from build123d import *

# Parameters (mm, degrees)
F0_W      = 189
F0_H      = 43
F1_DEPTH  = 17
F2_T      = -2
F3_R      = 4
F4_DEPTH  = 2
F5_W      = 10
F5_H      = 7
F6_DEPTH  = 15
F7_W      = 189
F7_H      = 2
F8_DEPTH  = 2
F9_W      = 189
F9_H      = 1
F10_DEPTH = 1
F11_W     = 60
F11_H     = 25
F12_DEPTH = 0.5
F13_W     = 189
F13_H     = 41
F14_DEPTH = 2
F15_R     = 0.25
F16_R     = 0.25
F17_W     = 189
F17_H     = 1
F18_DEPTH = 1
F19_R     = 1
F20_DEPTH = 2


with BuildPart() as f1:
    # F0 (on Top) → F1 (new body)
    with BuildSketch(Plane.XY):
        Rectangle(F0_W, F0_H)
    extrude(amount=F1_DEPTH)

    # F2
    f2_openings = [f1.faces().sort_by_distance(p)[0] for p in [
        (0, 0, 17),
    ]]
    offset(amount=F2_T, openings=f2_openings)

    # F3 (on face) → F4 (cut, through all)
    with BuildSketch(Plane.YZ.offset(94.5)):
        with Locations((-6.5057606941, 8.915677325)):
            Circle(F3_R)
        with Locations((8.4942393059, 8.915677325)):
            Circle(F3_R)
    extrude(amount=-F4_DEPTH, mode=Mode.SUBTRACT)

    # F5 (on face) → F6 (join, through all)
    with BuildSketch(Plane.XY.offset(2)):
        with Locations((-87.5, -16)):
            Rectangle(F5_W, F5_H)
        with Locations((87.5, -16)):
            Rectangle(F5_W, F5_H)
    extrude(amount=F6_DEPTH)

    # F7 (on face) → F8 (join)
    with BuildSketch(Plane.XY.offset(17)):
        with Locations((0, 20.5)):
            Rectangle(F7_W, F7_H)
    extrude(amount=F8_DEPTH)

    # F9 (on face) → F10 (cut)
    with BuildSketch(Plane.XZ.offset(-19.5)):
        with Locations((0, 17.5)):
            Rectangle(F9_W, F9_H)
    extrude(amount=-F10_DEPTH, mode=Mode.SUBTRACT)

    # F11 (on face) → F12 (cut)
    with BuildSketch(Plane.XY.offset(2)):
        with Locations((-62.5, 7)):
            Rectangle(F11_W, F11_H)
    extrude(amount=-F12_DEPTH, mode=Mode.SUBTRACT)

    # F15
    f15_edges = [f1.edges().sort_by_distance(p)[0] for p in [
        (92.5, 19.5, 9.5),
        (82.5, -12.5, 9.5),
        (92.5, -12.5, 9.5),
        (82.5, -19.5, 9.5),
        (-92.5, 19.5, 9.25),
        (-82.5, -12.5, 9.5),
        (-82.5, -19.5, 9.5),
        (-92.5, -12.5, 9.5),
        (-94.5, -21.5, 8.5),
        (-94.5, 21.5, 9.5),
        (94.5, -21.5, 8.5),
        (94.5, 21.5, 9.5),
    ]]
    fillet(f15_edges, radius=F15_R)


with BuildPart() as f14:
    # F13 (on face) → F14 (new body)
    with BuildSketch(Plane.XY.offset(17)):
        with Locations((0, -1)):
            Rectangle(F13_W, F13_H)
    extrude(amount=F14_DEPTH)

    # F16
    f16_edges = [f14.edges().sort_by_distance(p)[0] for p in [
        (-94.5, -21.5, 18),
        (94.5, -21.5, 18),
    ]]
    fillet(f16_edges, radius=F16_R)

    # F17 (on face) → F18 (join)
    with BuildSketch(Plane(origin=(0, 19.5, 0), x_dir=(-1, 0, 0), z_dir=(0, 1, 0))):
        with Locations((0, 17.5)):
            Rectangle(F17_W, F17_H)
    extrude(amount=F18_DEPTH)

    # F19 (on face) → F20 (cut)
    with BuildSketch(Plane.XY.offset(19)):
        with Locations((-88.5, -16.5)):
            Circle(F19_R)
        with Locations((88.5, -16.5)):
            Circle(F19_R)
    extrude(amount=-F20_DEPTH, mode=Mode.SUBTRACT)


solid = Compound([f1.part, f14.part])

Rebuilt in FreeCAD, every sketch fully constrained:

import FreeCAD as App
import Part
import Sketcher
Q = App.Units.Quantity


def edges_at(feature, points):
    """Names of the edges that pass closest to the given points."""
    edges = feature.Shape.Edges
    near = lambda p: min(range(len(edges)), key=lambda i: edges[i].distToShape(Part.Vertex(*p))[0])
    return sorted({f"Edge{near(p) + 1}" for p in points})


def faces_at(feature, points):
    """Names of the faces that lie closest to the given points."""
    faces = feature.Shape.Faces
    near = lambda p: min(range(len(faces)), key=lambda i: faces[i].distToShape(Part.Vertex(*p))[0])
    return sorted({f"Face{near(p) + 1}" for p in points})

doc = App.newDocument("Part")
body = doc.addObject("PartDesign::Body", "Body")

sketch1 = body.newObject("Sketcher::SketchObject", "Sketch")
sketch1.AttachmentSupport = (doc.getObject("XY_Plane"), [""])
sketch1.MapMode = "FlatFace"
sketch1.addGeometry([
    Part.LineSegment(App.Vector(-94, 22, 0), App.Vector(-94, -22, 0)),
    Part.LineSegment(App.Vector(-94, -22, 0), App.Vector(94, -22, 0)),
    Part.LineSegment(App.Vector(94, -22, 0), App.Vector(94, 22, 0)),
    Part.LineSegment(App.Vector(94, 22, 0), App.Vector(-94, 22, 0)),
], False)
sketch1.addConstraint([
    Sketcher.Constraint("Coincident", 0, 2, 1, 1),
    Sketcher.Constraint("Coincident", 1, 2, 2, 1),
    Sketcher.Constraint("Coincident", 2, 2, 3, 1),
    Sketcher.Constraint("Coincident", 3, 2, 0, 1),
    Sketcher.Constraint("Vertical", 0),
    Sketcher.Constraint("Horizontal", 1),
    Sketcher.Constraint("Vertical", 2),
    Sketcher.Constraint("Horizontal", 3),
    Sketcher.Constraint("Symmetric", 0, 2, 2, 2, -1, 1),
    Sketcher.Constraint("DistanceX", 1, 1, 1, 2, Q("189 mm")),
    Sketcher.Constraint("DistanceY", 0, 2, 0, 1, Q("43 mm")),
])
pad1 = body.newObject("PartDesign::Pad", "Pad")
pad1.Profile = sketch1
pad1.Length = 17
doc.recompute()

thickness = body.newObject("PartDesign::Thickness", "Thickness")
thickness.Base = (pad1, faces_at(pad1, [(0, 0, 17)]))
thickness.Value = 2
thickness.Reversed = True
thickness.Join = "Arc"

sketch2 = body.newObject("Sketcher::SketchObject", "Sketch001")
sketch2.AttachmentSupport = (doc.getObject("YZ_Plane"), [""])
sketch2.MapMode = "FlatFace"
sketch2.AttachmentOffset = App.Placement(App.Vector(0, 0, 94.5), App.Rotation())
sketch2.addGeometry([
    Part.Circle(App.Vector(-6.5, 8.9, 0), App.Vector(0, 0, 1), 4),
    Part.Circle(App.Vector(8.5, 8.9, 0), App.Vector(0, 0, 1), 4),
], False)
sketch2.addConstraint([
    Sketcher.Constraint("Equal", 0, 1),
    Sketcher.Constraint("Horizontal", 0, 3, 1, 3),
    Sketcher.Constraint("Diameter", 0, Q("8 mm")),
    Sketcher.Constraint("DistanceX", 0, 3, 1, 3, Q("15 mm")),
    Sketcher.Constraint("DistanceX", 0, 3, -1, 1, Q("6.505761 mm")),
    Sketcher.Constraint("DistanceY", -1, 1, 0, 3, Q("8.915677 mm")),
])
pocket1 = body.newObject("PartDesign::Pocket", "Pocket")
pocket1.Profile = sketch2
pocket1.Length = 2

sketch3 = body.newObject("Sketcher::SketchObject", "Sketch002")
sketch3.AttachmentSupport = (doc.getObject("XY_Plane"), [""])
sketch3.MapMode = "FlatFace"
sketch3.AttachmentOffset = App.Placement(App.Vector(0, 0, 2), App.Rotation())
sketch3.addGeometry([
    Part.LineSegment(App.Vector(-92, -12, 0), App.Vector(-92, -20, 0)),
    Part.LineSegment(App.Vector(-92, -20, 0), App.Vector(-82, -20, 0)),
    Part.LineSegment(App.Vector(-82, -20, 0), App.Vector(-82, -12, 0)),
    Part.LineSegment(App.Vector(-82, -12, 0), App.Vector(-92, -12, 0)),
    Part.LineSegment(App.Vector(82, -12, 0), App.Vector(82, -20, 0)),
    Part.LineSegment(App.Vector(82, -20, 0), App.Vector(92, -20, 0)),
    Part.LineSegment(App.Vector(92, -20, 0), App.Vector(92, -12, 0)),
    Part.LineSegment(App.Vector(92, -12, 0), App.Vector(82, -12, 0)),
], False)
sketch3.addConstraint([
    Sketcher.Constraint("Coincident", 0, 2, 1, 1),
    Sketcher.Constraint("Coincident", 1, 2, 2, 1),
    Sketcher.Constraint("Coincident", 2, 2, 3, 1),
    Sketcher.Constraint("Coincident", 3, 2, 0, 1),
    Sketcher.Constraint("Coincident", 4, 2, 5, 1),
    Sketcher.Constraint("Coincident", 5, 2, 6, 1),
    Sketcher.Constraint("Coincident", 6, 2, 7, 1),
    Sketcher.Constraint("Coincident", 7, 2, 4, 1),
    Sketcher.Constraint("Vertical", 0),
    Sketcher.Constraint("Horizontal", 1),
    Sketcher.Constraint("Vertical", 2),
    Sketcher.Constraint("Horizontal", 3),
    Sketcher.Constraint("Vertical", 4),
    Sketcher.Constraint("Horizontal", 5),
    Sketcher.Constraint("Vertical", 6),
    Sketcher.Constraint("Horizontal", 7),
    Sketcher.Constraint("Symmetric", 1, 2, 4, 2, -2),
    Sketcher.Constraint("Symmetric", 3, 2, 6, 2, -2),
    Sketcher.Constraint("DistanceX", 1, 1, 1, 2, Q("10 mm")),
    Sketcher.Constraint("DistanceY", 0, 2, 0, 1, Q("7 mm")),
    Sketcher.Constraint("DistanceX", 1, 2, 4, 2, Q("165 mm")),
    Sketcher.Constraint("DistanceY", 0, 2, -1, 1, Q("19.5 mm")),
])
pad2 = body.newObject("PartDesign::Pad", "Pad001")
pad2.Profile = sketch3
pad2.Length = 15

sketch4 = body.newObject("Sketcher::SketchObject", "Sketch003")
sketch4.AttachmentSupport = (doc.getObject("XY_Plane"), [""])
sketch4.MapMode = "FlatFace"
sketch4.AttachmentOffset = App.Placement(App.Vector(0, 0, 17), App.Rotation())
sketch4.addGeometry([
    Part.LineSegment(App.Vector(-94.5, 21.5, 0), App.Vector(-94.5, 19.5, 0)),
    Part.LineSegment(App.Vector(-94.5, 19.5, 0), App.Vector(94.5, 19.5, 0)),
    Part.LineSegment(App.Vector(94.5, 19.5, 0), App.Vector(94.5, 21.5, 0)),
    Part.LineSegment(App.Vector(94.5, 21.5, 0), App.Vector(-94.5, 21.5, 0)),
], False)
sketch4.addConstraint([
    Sketcher.Constraint("Coincident", 0, 2, 1, 1),
    Sketcher.Constraint("Coincident", 1, 2, 2, 1),
    Sketcher.Constraint("Coincident", 2, 2, 3, 1),
    Sketcher.Constraint("Coincident", 3, 2, 0, 1),
    Sketcher.Constraint("Vertical", 0),
    Sketcher.Constraint("Horizontal", 1),
    Sketcher.Constraint("Vertical", 2),
    Sketcher.Constraint("Horizontal", 3),
    Sketcher.Constraint("DistanceX", 1, 1, 1, 2, Q("189 mm")),
    Sketcher.Constraint("DistanceY", 0, 2, 0, 1, Q("2 mm")),
    Sketcher.Constraint("DistanceX", 0, 2, -1, 1, Q("94.5 mm")),
    Sketcher.Constraint("DistanceY", -1, 1, 0, 2, Q("19.5 mm")),
])
pad3 = body.newObject("PartDesign::Pad", "Pad002")
pad3.Profile = sketch4
pad3.Length = 2

sketch5 = body.newObject("Sketcher::SketchObject", "Sketch004")
sketch5.AttachmentSupport = (doc.getObject("XZ_Plane"), [""])
sketch5.MapMode = "FlatFace"
sketch5.AttachmentOffset = App.Placement(App.Vector(0, 0, -19.5), App.Rotation())
sketch5.addGeometry([
    Part.LineSegment(App.Vector(-94.5, 18, 0), App.Vector(-94.5, 17, 0)),
    Part.LineSegment(App.Vector(-94.5, 17, 0), App.Vector(94.5, 17, 0)),
    Part.LineSegment(App.Vector(94.5, 17, 0), App.Vector(94.5, 18, 0)),
    Part.LineSegment(App.Vector(94.5, 18, 0), App.Vector(-94.5, 18, 0)),
], False)
sketch5.addConstraint([
    Sketcher.Constraint("Coincident", 0, 2, 1, 1),
    Sketcher.Constraint("Coincident", 1, 2, 2, 1),
    Sketcher.Constraint("Coincident", 2, 2, 3, 1),
    Sketcher.Constraint("Coincident", 3, 2, 0, 1),
    Sketcher.Constraint("Vertical", 0),
    Sketcher.Constraint("Horizontal", 1),
    Sketcher.Constraint("Vertical", 2),
    Sketcher.Constraint("Horizontal", 3),
    Sketcher.Constraint("DistanceX", 1, 1, 1, 2, Q("189 mm")),
    Sketcher.Constraint("DistanceY", 0, 2, 0, 1, Q("1 mm")),
    Sketcher.Constraint("DistanceY", -1, 1, 0, 2, Q("17 mm")),
    Sketcher.Constraint("DistanceX", 0, 2, -1, 1, Q("94.5 mm")),
])
pocket2 = body.newObject("PartDesign::Pocket", "Pocket001")
pocket2.Profile = sketch5
pocket2.Length = 1

sketch6 = body.newObject("Sketcher::SketchObject", "Sketch005")
sketch6.AttachmentSupport = (doc.getObject("XY_Plane"), [""])
sketch6.MapMode = "FlatFace"
sketch6.AttachmentOffset = App.Placement(App.Vector(0, 0, 2), App.Rotation())
sketch6.addGeometry([
    Part.LineSegment(App.Vector(-92, 20, 0), App.Vector(-92, -6, 0)),
    Part.LineSegment(App.Vector(-92, -6, 0), App.Vector(-32, -6, 0)),
    Part.LineSegment(App.Vector(-32, -6, 0), App.Vector(-32, 20, 0)),
    Part.LineSegment(App.Vector(-32, 20, 0), App.Vector(-92, 20, 0)),
], False)
sketch6.addConstraint([
    Sketcher.Constraint("Coincident", 0, 2, 1, 1),
    Sketcher.Constraint("Coincident", 1, 2, 2, 1),
    Sketcher.Constraint("Coincident", 2, 2, 3, 1),
    Sketcher.Constraint("Coincident", 3, 2, 0, 1),
    Sketcher.Constraint("Vertical", 0),
    Sketcher.Constraint("Horizontal", 1),
    Sketcher.Constraint("Vertical", 2),
    Sketcher.Constraint("Horizontal", 3),
    Sketcher.Constraint("DistanceX", 1, 1, 1, 2, Q("60 mm")),
    Sketcher.Constraint("DistanceY", 0, 2, 0, 1, Q("25 mm")),
    Sketcher.Constraint("DistanceX", 0, 2, -1, 1, Q("92.5 mm")),
    Sketcher.Constraint("DistanceY", 0, 2, -1, 1, Q("5.5 mm")),
])
pocket3 = body.newObject("PartDesign::Pocket", "Pocket002")
pocket3.Profile = sketch6
pocket3.Length = 0.5
doc.recompute()

fillet = body.newObject("PartDesign::Fillet", "Fillet")
fillet.Base = (pocket3, edges_at(pocket3, [
    (92.5, 19.5, 9.5),
    (82.5, -12.5, 9.5),
    (92.5, -12.5, 9.5),
    (82.5, -19.5, 9.5),
    (-92.5, 19.5, 9.25),
    (-82.5, -12.5, 9.5),
    (-82.5, -19.5, 9.5),
    (-92.5, -12.5, 9.5),
    (-94.5, -21.5, 8.5),
    (-94.5, 21.5, 9.5),
    (94.5, -21.5, 8.5),
    (94.5, 21.5, 9.5),
]))
fillet.Radius = 0.25
body2 = doc.addObject("PartDesign::Body", "Body001")

sketch7 = body2.newObject("Sketcher::SketchObject", "Sketch006")
sketch7.AttachmentSupport = (doc.getObject("XY_Plane001"), [""])
sketch7.MapMode = "FlatFace"
sketch7.AttachmentOffset = App.Placement(App.Vector(0, 0, 17), App.Rotation())
sketch7.addGeometry([
    Part.LineSegment(App.Vector(-94, 20, 0), App.Vector(-94, -22, 0)),
    Part.LineSegment(App.Vector(-94, -22, 0), App.Vector(94, -22, 0)),
    Part.LineSegment(App.Vector(94, -22, 0), App.Vector(94, 20, 0)),
    Part.LineSegment(App.Vector(94, 20, 0), App.Vector(-94, 20, 0)),
], False)
sketch7.addConstraint([
    Sketcher.Constraint("Coincident", 0, 2, 1, 1),
    Sketcher.Constraint("Coincident", 1, 2, 2, 1),
    Sketcher.Constraint("Coincident", 2, 2, 3, 1),
    Sketcher.Constraint("Coincident", 3, 2, 0, 1),
    Sketcher.Constraint("Vertical", 0),
    Sketcher.Constraint("Horizontal", 1),
    Sketcher.Constraint("Vertical", 2),
    Sketcher.Constraint("Horizontal", 3),
    Sketcher.Constraint("DistanceX", 1, 1, 1, 2, Q("189 mm")),
    Sketcher.Constraint("DistanceY", 0, 2, 0, 1, Q("41 mm")),
    Sketcher.Constraint("DistanceX", 0, 2, -1, 1, Q("94.5 mm")),
    Sketcher.Constraint("DistanceY", 0, 2, -1, 1, Q("21.5 mm")),
])
pad4 = body2.newObject("PartDesign::Pad", "Pad003")
pad4.Profile = sketch7
pad4.Length = 2
doc.recompute()

fillet2 = body2.newObject("PartDesign::Fillet", "Fillet001")
fillet2.Base = (pad4, edges_at(pad4, [(-94.5, -21.5, 18), (94.5, -21.5, 18)]))
fillet2.Radius = 0.25

sketch8 = body2.newObject("Sketcher::SketchObject", "Sketch007")
sketch8.AttachmentSupport = (doc.getObject("XZ_Plane001"), [""])
sketch8.MapMode = "FlatFace"
sketch8.AttachmentOffset = App.Placement(App.Vector(0, 0, -19.5), App.Rotation())
sketch8.addGeometry([
    Part.LineSegment(App.Vector(94.5, 18, 0), App.Vector(94.5, 17, 0)),
    Part.LineSegment(App.Vector(94.5, 17, 0), App.Vector(-94.5, 17, 0)),
    Part.LineSegment(App.Vector(-94.5, 17, 0), App.Vector(-94.5, 18, 0)),
    Part.LineSegment(App.Vector(-94.5, 18, 0), App.Vector(94.5, 18, 0)),
], False)
sketch8.addConstraint([
    Sketcher.Constraint("Coincident", 0, 2, 1, 1),
    Sketcher.Constraint("Coincident", 1, 2, 2, 1),
    Sketcher.Constraint("Coincident", 2, 2, 3, 1),
    Sketcher.Constraint("Coincident", 3, 2, 0, 1),
    Sketcher.Constraint("Vertical", 0),
    Sketcher.Constraint("Horizontal", 1),
    Sketcher.Constraint("Vertical", 2),
    Sketcher.Constraint("Horizontal", 3),
    Sketcher.Constraint("DistanceX", 1, 2, 1, 1, Q("189 mm")),
    Sketcher.Constraint("DistanceY", 0, 2, 0, 1, Q("1 mm")),
    Sketcher.Constraint("DistanceY", -1, 1, 0, 2, Q("17 mm")),
    Sketcher.Constraint("DistanceX", -1, 1, 0, 2, Q("94.5 mm")),
])
pad5 = body2.newObject("PartDesign::Pad", "Pad004")
pad5.Profile = sketch8
pad5.Length = 1
pad5.Reversed = True

sketch9 = body2.newObject("Sketcher::SketchObject", "Sketch008")
sketch9.AttachmentSupport = (doc.getObject("XY_Plane001"), [""])
sketch9.MapMode = "FlatFace"
sketch9.AttachmentOffset = App.Placement(App.Vector(0, 0, 19), App.Rotation())
sketch9.addGeometry([
    Part.Circle(App.Vector(-88.5, -16.5, 0), App.Vector(0, 0, 1), 1),
    Part.Circle(App.Vector(88.5, -16.5, 0), App.Vector(0, 0, 1), 1),
], False)
sketch9.addConstraint([
    Sketcher.Constraint("Equal", 0, 1),
    Sketcher.Constraint("Symmetric", 0, 3, 1, 3, -2),
    Sketcher.Constraint("Diameter", 0, Q("2 mm")),
    Sketcher.Constraint("DistanceX", 0, 3, 1, 3, Q("177 mm")),
    Sketcher.Constraint("DistanceY", 0, 3, -1, 1, Q("16.5 mm")),
])
pocket4 = body2.newObject("PartDesign::Pocket", "Pocket003")
pocket4.Profile = sketch9
pocket4.Length = 2

doc.recompute()
